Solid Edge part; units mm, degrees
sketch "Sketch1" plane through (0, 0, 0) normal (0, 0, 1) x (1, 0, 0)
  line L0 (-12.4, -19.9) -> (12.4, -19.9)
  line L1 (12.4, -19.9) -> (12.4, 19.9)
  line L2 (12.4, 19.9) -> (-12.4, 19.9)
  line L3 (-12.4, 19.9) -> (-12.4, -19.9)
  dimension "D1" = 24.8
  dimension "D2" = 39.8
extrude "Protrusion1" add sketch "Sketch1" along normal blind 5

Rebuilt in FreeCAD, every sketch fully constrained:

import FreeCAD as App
import Part
import Sketcher
Q = App.Units.Quantity

doc = App.newDocument("Part")
body = doc.addObject("PartDesign::Body", "Body")

sketch1 = body.newObject("Sketcher::SketchObject", "Sketch")
sketch1.AttachmentSupport = (doc.getObject("XY_Plane"), [""])
sketch1.MapMode = "FlatFace"
sketch1.addGeometry([
    Part.LineSegment(App.Vector(-12, 20, 0), App.Vector(-12, -20, 0)),
    Part.LineSegment(App.Vector(-12, -20, 0), App.Vector(12, -20, 0)),
    Part.LineSegment(App.Vector(12, -20, 0), App.Vector(12, 20, 0)),
    Part.LineSegment(App.Vector(12, 20, 0), App.Vector(-12, 20, 0)),
], False)
sketch1.addConstraint([
    Sketcher.Constraint("Coincident", 0, 2, 1, 1),
    Sketcher.Constraint("Coincident", 1, 2, 2, 1),
    Sketcher.Constraint("Coincident", 2, 2, 3, 1),
    Sketcher.Constraint("Coincident", 3, 2, 0, 1),
    Sketcher.Constraint("Vertical", 0),
    Sketcher.Constraint("Horizontal", 1),
    Sketcher.Constraint("Vertical", 2),
    Sketcher.Constraint("Horizontal", 3),
    Sketcher.Constraint("Symmetric", 0, 2, 2, 2, -1, 1),
    Sketcher.Constraint("DistanceX", 0, 2, -1, 1, Q("12.4 mm")),
    Sketcher.Constraint("DistanceY", 0, 2, 0, 1, Q("39.8 mm")),
])
pad1 = body.newObject("PartDesign::Pad", "Pad")
pad1.Profile = sketch1
pad1.Length = 5

doc.recompute()
